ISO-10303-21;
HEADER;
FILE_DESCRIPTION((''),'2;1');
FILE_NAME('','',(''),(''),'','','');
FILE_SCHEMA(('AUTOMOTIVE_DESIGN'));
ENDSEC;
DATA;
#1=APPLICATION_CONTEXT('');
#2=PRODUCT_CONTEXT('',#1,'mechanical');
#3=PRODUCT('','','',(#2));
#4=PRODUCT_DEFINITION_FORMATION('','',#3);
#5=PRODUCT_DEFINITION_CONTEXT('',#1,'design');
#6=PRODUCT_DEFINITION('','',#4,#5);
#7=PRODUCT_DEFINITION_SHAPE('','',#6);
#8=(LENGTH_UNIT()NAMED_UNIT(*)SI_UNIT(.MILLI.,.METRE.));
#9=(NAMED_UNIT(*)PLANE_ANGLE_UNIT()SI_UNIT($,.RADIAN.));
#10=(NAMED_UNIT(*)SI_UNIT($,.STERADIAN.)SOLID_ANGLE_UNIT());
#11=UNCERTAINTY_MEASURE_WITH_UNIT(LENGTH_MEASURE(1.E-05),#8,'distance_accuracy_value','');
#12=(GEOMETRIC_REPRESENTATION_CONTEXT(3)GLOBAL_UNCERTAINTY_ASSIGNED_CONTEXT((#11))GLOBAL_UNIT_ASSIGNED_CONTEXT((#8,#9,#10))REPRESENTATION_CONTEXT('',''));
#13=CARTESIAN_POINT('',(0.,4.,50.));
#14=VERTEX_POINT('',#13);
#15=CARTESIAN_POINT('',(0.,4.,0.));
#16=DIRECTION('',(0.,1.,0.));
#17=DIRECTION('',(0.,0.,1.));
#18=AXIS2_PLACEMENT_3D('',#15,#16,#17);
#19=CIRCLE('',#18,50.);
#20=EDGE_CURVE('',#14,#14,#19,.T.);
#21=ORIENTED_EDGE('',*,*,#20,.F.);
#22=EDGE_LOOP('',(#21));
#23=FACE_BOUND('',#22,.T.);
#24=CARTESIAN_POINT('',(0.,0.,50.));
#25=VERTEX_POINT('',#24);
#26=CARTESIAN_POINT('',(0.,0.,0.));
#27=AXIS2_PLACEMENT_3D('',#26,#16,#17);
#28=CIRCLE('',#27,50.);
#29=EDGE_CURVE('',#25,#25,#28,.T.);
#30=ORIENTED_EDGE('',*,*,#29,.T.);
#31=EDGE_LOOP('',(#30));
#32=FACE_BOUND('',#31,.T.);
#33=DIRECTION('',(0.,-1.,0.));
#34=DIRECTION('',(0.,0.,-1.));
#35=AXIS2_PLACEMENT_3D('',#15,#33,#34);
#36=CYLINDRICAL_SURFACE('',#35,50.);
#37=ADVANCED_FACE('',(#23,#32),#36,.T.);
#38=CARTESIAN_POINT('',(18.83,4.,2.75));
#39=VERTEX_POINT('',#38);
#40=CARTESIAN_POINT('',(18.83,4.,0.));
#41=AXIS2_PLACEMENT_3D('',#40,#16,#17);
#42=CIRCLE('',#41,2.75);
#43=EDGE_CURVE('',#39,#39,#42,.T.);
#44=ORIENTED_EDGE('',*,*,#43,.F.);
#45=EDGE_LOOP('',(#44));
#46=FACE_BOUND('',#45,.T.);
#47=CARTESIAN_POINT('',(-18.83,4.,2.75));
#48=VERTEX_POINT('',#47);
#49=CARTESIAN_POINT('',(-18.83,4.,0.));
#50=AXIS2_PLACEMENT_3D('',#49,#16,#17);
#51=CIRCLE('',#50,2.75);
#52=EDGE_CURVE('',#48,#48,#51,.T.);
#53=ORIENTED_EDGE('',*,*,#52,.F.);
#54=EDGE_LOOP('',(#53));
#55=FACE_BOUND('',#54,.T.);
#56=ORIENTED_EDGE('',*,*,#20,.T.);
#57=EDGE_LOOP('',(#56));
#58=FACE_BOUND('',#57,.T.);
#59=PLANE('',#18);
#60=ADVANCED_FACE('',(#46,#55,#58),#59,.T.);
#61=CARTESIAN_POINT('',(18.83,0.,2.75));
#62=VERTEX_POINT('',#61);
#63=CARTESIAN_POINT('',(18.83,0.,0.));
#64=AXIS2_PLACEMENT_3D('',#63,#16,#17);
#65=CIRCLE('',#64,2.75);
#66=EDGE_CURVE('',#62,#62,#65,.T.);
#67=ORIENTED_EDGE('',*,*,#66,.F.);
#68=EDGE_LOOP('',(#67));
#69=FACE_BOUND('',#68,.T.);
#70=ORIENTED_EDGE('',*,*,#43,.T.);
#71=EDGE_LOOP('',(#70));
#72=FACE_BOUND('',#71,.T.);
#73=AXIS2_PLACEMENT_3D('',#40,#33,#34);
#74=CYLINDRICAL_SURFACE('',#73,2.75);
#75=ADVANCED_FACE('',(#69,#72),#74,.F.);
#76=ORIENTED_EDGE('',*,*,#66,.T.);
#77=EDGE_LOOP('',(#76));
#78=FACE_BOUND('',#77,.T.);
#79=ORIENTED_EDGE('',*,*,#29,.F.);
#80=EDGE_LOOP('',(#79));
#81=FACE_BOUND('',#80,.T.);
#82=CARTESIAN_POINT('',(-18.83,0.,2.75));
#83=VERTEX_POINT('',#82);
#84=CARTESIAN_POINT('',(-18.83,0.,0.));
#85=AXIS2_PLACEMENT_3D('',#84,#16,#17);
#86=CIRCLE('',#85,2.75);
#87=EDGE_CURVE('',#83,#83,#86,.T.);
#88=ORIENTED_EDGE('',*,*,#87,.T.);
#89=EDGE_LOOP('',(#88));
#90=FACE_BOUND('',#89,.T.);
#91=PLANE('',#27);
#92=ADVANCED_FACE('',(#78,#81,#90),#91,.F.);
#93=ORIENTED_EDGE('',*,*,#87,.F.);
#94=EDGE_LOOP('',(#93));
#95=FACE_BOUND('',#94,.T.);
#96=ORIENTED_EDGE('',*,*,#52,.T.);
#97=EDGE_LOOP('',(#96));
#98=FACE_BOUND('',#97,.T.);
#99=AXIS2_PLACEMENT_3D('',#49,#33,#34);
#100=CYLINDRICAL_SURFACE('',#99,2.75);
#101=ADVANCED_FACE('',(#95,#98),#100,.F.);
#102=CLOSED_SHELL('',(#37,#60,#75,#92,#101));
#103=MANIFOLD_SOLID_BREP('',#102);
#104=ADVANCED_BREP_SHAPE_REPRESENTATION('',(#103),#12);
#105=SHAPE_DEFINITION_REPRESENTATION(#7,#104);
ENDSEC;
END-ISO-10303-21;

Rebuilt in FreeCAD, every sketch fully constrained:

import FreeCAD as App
import Part
import Sketcher
Q = App.Units.Quantity

doc = App.newDocument("Part")
body = doc.addObject("PartDesign::Body", "Body")

# Sketch on XZ plane
sketch1 = doc.addObject("Sketcher::SketchObject", "Sketch")
body.addObject(sketch1)
sketch1.AttachmentSupport = (doc.XZ_Plane, [""])
sketch1.MapMode = "FlatFace"
sketch1.addGeometry(Part.Circle(App.Vector(0, 0, 0), App.Vector(0, 0, 1), 50), False)
sketch1.addGeometry(Part.Circle(App.Vector(-18.8, 0, 0), App.Vector(0, 0, 1), 2.8), False)
sketch1.addGeometry(Part.Circle(App.Vector(18.8, 0, 0), App.Vector(0, 0, 1), 2.8), False)
sketch1.addConstraint(Sketcher.Constraint("Coincident", 0, 3, -1, 1))
sketch1.addConstraint(Sketcher.Constraint("Equal", 1, 2))
sketch1.addConstraint(Sketcher.Constraint("Symmetric", 1, 3, 2, 3, -1, 1))
sketch1.addConstraint(Sketcher.Constraint("PointOnObject", 1, 3, -1))
sketch1.addConstraint(Sketcher.Constraint("Diameter", 0, Q("100 mm")))
sketch1.addConstraint(Sketcher.Constraint("Diameter", 1, Q("5.5 mm")))
sketch1.addConstraint(Sketcher.Constraint("DistanceX", 1, 3, -1, 1, Q("18.83 mm")))
pad1 = doc.addObject("PartDesign::Pad", "Pad")
body.addObject(pad1)
pad1.Profile = sketch1
pad1.Length = 4
pad1.Reversed = True

doc.recompute()
